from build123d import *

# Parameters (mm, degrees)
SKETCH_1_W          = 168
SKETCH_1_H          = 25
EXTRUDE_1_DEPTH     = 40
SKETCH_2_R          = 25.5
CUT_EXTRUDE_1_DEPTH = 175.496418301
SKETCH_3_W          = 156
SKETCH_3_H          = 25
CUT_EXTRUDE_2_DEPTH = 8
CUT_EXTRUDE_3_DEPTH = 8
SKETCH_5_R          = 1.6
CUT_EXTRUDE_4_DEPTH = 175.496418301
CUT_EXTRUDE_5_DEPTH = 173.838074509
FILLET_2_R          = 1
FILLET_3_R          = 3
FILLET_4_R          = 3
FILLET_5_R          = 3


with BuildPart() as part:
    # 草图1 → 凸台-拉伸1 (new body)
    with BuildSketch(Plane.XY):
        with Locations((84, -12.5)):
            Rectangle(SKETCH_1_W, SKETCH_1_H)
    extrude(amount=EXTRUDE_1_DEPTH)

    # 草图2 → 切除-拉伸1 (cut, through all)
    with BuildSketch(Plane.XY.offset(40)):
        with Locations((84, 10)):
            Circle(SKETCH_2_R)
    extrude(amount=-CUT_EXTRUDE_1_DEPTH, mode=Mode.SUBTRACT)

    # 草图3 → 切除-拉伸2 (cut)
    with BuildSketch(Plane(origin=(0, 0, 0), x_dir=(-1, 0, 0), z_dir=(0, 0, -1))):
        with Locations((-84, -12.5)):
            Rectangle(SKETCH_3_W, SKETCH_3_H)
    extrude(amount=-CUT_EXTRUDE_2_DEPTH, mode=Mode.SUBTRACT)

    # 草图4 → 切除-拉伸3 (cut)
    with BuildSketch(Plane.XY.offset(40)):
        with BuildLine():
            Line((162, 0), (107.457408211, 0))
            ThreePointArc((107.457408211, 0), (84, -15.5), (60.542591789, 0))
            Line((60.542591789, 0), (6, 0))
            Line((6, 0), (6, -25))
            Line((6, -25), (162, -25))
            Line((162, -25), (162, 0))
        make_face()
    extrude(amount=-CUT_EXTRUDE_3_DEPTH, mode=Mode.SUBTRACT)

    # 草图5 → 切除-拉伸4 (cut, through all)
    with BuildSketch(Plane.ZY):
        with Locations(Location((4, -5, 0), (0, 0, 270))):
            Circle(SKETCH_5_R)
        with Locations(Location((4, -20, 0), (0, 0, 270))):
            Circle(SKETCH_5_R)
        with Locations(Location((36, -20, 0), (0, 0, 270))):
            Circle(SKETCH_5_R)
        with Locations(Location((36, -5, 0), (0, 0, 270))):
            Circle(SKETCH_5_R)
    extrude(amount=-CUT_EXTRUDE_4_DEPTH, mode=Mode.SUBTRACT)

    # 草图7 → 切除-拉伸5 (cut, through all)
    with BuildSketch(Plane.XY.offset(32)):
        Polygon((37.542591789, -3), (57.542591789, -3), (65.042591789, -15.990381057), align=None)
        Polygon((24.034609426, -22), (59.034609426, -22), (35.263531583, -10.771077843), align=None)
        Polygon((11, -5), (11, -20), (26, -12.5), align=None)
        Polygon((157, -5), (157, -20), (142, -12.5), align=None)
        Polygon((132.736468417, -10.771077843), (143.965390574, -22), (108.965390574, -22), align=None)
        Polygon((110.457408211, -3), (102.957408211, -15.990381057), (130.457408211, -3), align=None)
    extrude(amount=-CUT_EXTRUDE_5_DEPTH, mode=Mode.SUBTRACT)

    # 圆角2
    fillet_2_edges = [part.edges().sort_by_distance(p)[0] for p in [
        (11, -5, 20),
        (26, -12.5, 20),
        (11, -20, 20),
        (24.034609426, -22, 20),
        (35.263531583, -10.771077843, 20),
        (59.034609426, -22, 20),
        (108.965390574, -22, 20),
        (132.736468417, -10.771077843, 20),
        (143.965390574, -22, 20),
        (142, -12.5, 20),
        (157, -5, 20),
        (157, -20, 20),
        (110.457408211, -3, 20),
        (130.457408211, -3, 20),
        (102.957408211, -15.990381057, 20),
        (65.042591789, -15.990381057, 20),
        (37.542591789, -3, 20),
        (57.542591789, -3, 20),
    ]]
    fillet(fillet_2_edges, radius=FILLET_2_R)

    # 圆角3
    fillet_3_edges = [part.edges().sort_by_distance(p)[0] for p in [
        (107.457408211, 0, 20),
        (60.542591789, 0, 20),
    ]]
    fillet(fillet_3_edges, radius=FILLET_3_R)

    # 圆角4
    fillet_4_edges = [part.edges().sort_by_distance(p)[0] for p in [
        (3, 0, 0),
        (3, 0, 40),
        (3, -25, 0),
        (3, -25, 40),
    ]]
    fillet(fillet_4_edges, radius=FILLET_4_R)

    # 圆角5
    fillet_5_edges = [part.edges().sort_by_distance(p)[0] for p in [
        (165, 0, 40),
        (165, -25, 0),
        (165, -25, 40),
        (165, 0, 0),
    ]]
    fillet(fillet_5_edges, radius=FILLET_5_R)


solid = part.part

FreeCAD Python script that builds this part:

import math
import FreeCAD as App
import Part
import Sketcher
from FreeCAD import Vector
Q = App.Units.Quantity


def edges_at(feature, points):
    """Names of the edges that pass closest to the given points."""
    edges = feature.Shape.Edges
    near = lambda p: min(range(len(edges)), key=lambda i: edges[i].distToShape(Part.Vertex(*p))[0])
    return sorted({f"Edge{near(p) + 1}" for p in points})


def add_polygon(sketch, points):
    """Adds a closed chain of lines whose ends are joined by coincident constraints."""
    first, n = sketch.GeometryCount, len(points)
    for a, b in zip(points, points[1:] + points[:1]):
        sketch.addGeometry(Part.LineSegment(App.Vector(*a, 0), App.Vector(*b, 0)), False)
    for i in range(n):
        sketch.addConstraint(Sketcher.Constraint("Coincident", first + i, 2, first + (i + 1) % n, 1))

doc = App.newDocument("Part")
body = doc.addObject("PartDesign::Body", "Body")

# Sketch on XY plane
sketch1 = doc.addObject("Sketcher::SketchObject", "Sketch")
body.addObject(sketch1)
sketch1.AttachmentSupport = (doc.XY_Plane, [""])
sketch1.MapMode = "FlatFace"
add_polygon(sketch1, [(0, 0), (0, -25), (168, -25), (168, 0)])  # lines 0-3
sketch1.addConstraint(Sketcher.Constraint("Vertical", 0))
sketch1.addConstraint(Sketcher.Constraint("Horizontal", 1))
sketch1.addConstraint(Sketcher.Constraint("Vertical", 2))
sketch1.addConstraint(Sketcher.Constraint("Horizontal", 3))
sketch1.addConstraint(Sketcher.Constraint("Coincident", 3, 2, -1, 1))
sketch1.addConstraint(Sketcher.Constraint("DistanceX", 1, 1, 1, 2, Q("168 mm")))
sketch1.addConstraint(Sketcher.Constraint("DistanceY", 0, 2, 0, 1, Q("25 mm")))
pad1 = doc.addObject("PartDesign::Pad", "Pad")
body.addObject(pad1)
pad1.Profile = sketch1
pad1.Length = 40

# Sketch on XY plane
sketch2 = doc.addObject("Sketcher::SketchObject", "Sketch001")
body.addObject(sketch2)
sketch2.AttachmentSupport = (doc.XY_Plane, [""])
sketch2.MapMode = "FlatFace"
sketch2.AttachmentOffset = App.Placement(Vector(0, 0, 40), App.Rotation())
sketch2.addGeometry(Part.Circle(Vector(84, 10, 0), Vector(0, 0, 1), 26), False)
sketch2.addConstraint(Sketcher.Constraint("Diameter", 0, Q("51 mm")))
sketch2.addConstraint(Sketcher.Constraint("DistanceX", -1, 1, 0, 3, Q("84 mm")))
sketch2.addConstraint(Sketcher.Constraint("DistanceY", -1, 1, 0, 3, Q("10 mm")))
pocket1 = doc.addObject("PartDesign::Pocket", "Pocket")
body.addObject(pocket1)
pocket1.Profile = sketch2
pocket1.Type = "ThroughAll"

# Sketch on XY plane
sketch3 = doc.addObject("Sketcher::SketchObject", "Sketch002")
body.addObject(sketch3)
sketch3.AttachmentSupport = (doc.XY_Plane, [""])
sketch3.MapMode = "FlatFace"
add_polygon(sketch3, [(162, 0), (162, -25), (6, -25), (6, 0)])  # lines 0-3
sketch3.addConstraint(Sketcher.Constraint("Vertical", 0))
sketch3.addConstraint(Sketcher.Constraint("Horizontal", 1))
sketch3.addConstraint(Sketcher.Constraint("Vertical", 2))
sketch3.addConstraint(Sketcher.Constraint("Horizontal", 3))
sketch3.addConstraint(Sketcher.Constraint("PointOnObject", 2, 2, -1))
sketch3.addConstraint(Sketcher.Constraint("DistanceX", 1, 2, 1, 1, Q("156 mm")))
sketch3.addConstraint(Sketcher.Constraint("DistanceY", 0, 2, 0, 1, Q("25 mm")))
sketch3.addConstraint(Sketcher.Constraint("DistanceX", -1, 1, 0, 2, Q("162 mm")))
pocket2 = doc.addObject("PartDesign::Pocket", "Pocket001")
body.addObject(pocket2)
pocket2.Profile = sketch3
pocket2.Length = 8
pocket2.Reversed = True

# Sketch on XY plane
sketch4 = doc.addObject("Sketcher::SketchObject", "Sketch003")
body.addObject(sketch4)
sketch4.AttachmentSupport = (doc.XY_Plane, [""])
sketch4.MapMode = "FlatFace"
sketch4.AttachmentOffset = App.Placement(Vector(0, 0, 40), App.Rotation())
sketch4.addGeometry(Part.LineSegment(Vector(162, 0, 0), Vector(107, 0, 0)), False)
sketch4.addGeometry(Part.ArcOfCircle(Part.Circle(Vector(84, 10, 0), Vector(0, 0, 1), 25), math.radians(-157), math.radians(-23)), False)
sketch4.addGeometry(Part.LineSegment(Vector(61, 0, 0), Vector(6, 0, 0)), False)
sketch4.addGeometry(Part.LineSegment(Vector(6, 0, 0), Vector(6, -25, 0)), False)
sketch4.addGeometry(Part.LineSegment(Vector(6, -25, 0), Vector(162, -25, 0)), False)
sketch4.addGeometry(Part.LineSegment(Vector(162, -25, 0), Vector(162, 0, 0)), False)
sketch4.addConstraint(Sketcher.Constraint("Coincident", 0, 2, 1, 2))
sketch4.addConstraint(Sketcher.Constraint("Coincident", 1, 1, 2, 1))
sketch4.addConstraint(Sketcher.Constraint("Coincident", 2, 2, 3, 1))
sketch4.addConstraint(Sketcher.Constraint("Coincident", 3, 2, 4, 1))
sketch4.addConstraint(Sketcher.Constraint("Coincident", 4, 2, 5, 1))
sketch4.addConstraint(Sketcher.Constraint("Coincident", 5, 2, 0, 1))
sketch4.addConstraint(Sketcher.Constraint("Horizontal", 0))
sketch4.addConstraint(Sketcher.Constraint("Horizontal", 2))
sketch4.addConstraint(Sketcher.Constraint("Vertical", 3))
sketch4.addConstraint(Sketcher.Constraint("Horizontal", 4))
sketch4.addConstraint(Sketcher.Constraint("Vertical", 5))
sketch4.addConstraint(Sketcher.Constraint("PointOnObject", 0, 2, -1))
sketch4.addConstraint(Sketcher.Constraint("PointOnObject", 1, 1, -1))
sketch4.addConstraint(Sketcher.Constraint("Equal", 0, 2))
sketch4.addConstraint(Sketcher.Constraint("Radius", 1, Q("25.5 mm")))
sketch4.addConstraint(Sketcher.Constraint("DistanceX", 4, 1, 4, 2, Q("156 mm")))
sketch4.addConstraint(Sketcher.Constraint("DistanceY", 3, 2, 3, 1, Q("25 mm")))
sketch4.addConstraint(Sketcher.Constraint("DistanceX", -1, 1, 1, 3, Q("84 mm")))
sketch4.addConstraint(Sketcher.Constraint("DistanceY", -1, 1, 1, 3, Q("10 mm")))
pocket3 = doc.addObject("PartDesign::Pocket", "Pocket002")
body.addObject(pocket3)
pocket3.Profile = sketch4
pocket3.Length = 8

# Sketch on YZ plane
sketch5 = doc.addObject("Sketcher::SketchObject", "Sketch004")
body.addObject(sketch5)
sketch5.AttachmentSupport = (doc.YZ_Plane, [""])
sketch5.MapMode = "FlatFace"
sketch5.addGeometry(Part.Circle(Vector(-5, 4, 0), Vector(0, 0, 1), 1.6), False)
sketch5.addGeometry(Part.Circle(Vector(-20, 4, 0), Vector(0, 0, 1), 1.6), False)
sketch5.addGeometry(Part.Circle(Vector(-20, 36, 0), Vector(0, 0, 1), 1.6), False)
sketch5.addGeometry(Part.Circle(Vector(-5, 36, 0), Vector(0, 0, 1), 1.6), False)
sketch5.addConstraint(Sketcher.Constraint("Equal", 0, 1))
sketch5.addConstraint(Sketcher.Constraint("Equal", 1, 2))
sketch5.addConstraint(Sketcher.Constraint("Equal", 2, 3))
sketch5.addConstraint(Sketcher.Constraint("Horizontal", 0, 3, 1, 3))
sketch5.addConstraint(Sketcher.Constraint("Horizontal", 2, 3, 3, 3))
sketch5.addConstraint(Sketcher.Constraint("Vertical", 1, 3, 2, 3))
sketch5.addConstraint(Sketcher.Constraint("Vertical", 0, 3, 3, 3))
sketch5.addConstraint(Sketcher.Constraint("Diameter", 0, Q("3.2 mm")))
sketch5.addConstraint(Sketcher.Constraint("DistanceX", 0, 3, -1, 1, Q("5 mm")))
sketch5.addConstraint(Sketcher.Constraint("DistanceY", -1, 1, 0, 3, Q("4 mm")))
sketch5.addConstraint(Sketcher.Constraint("DistanceX", 1, 3, -1, 1, Q("20 mm")))
sketch5.addConstraint(Sketcher.Constraint("DistanceY", -1, 1, 2, 3, Q("36 mm")))
pocket4 = doc.addObject("PartDesign::Pocket", "Pocket003")
body.addObject(pocket4)
pocket4.Profile = sketch5
pocket4.Type = "ThroughAll"
pocket4.Reversed = True

# Sketch on XY plane
sketch6 = doc.addObject("Sketcher::SketchObject", "Sketch005")
body.addObject(sketch6)
sketch6.AttachmentSupport = (doc.XY_Plane, [""])
sketch6.MapMode = "FlatFace"
sketch6.AttachmentOffset = App.Placement(Vector(0, 0, 32), App.Rotation())
add_polygon(sketch6, [(58, -3), (38, -3), (65, -16)])  # lines 0-2
add_polygon(sketch6, [(24, -22), (59, -22), (35, -11)])  # lines 3-5
add_polygon(sketch6, [(11, -5), (11, -20), (26, -12)])  # lines 6-8
add_polygon(sketch6, [(157, -20), (157, -5), (142, -12)])  # lines 9-11
add_polygon(sketch6, [(144, -22), (133, -11), (109, -22)])  # lines 12-14
add_polygon(sketch6, [(110, -3), (103, -16), (130, -3)])  # lines 15-17
sketch6.addConstraint(Sketcher.Constraint("Horizontal", 0))
sketch6.addConstraint(Sketcher.Constraint("Horizontal", 3))
sketch6.addConstraint(Sketcher.Constraint("Vertical", 6))
sketch6.addConstraint(Sketcher.Constraint("Vertical", 9))
sketch6.addConstraint(Sketcher.Constraint("Horizontal", 14))
sketch6.addConstraint(Sketcher.Constraint("Horizontal", 17))
sketch6.addConstraint(Sketcher.Constraint("Parallel", 1, 4))
sketch6.addConstraint(Sketcher.Constraint("Parallel", 7, 10))
sketch6.addConstraint(Sketcher.Constraint("Parallel", 8, 11))
sketch6.addConstraint(Sketcher.Constraint("Perpendicular", 5, 12))
sketch6.addConstraint(Sketcher.Constraint("Parallel", 13, 16))
sketch6.addConstraint(Sketcher.Constraint("Horizontal", 8, 2, 9, 2))
sketch6.addConstraint(Sketcher.Constraint("Horizontal", 7, 2, 10, 2))
sketch6.addConstraint(Sketcher.Constraint("Horizontal", 6, 2, 11, 2))
sketch6.addConstraint(Sketcher.Constraint("Horizontal", 4, 2, 12, 2))
sketch6.addConstraint(Sketcher.Constraint("Horizontal", 5, 2, 13, 2))
sketch6.addConstraint(Sketcher.Constraint("Horizontal", 1, 2, 15, 2))
sketch6.addConstraint(Sketcher.Constraint("Horizontal", 2, 2, 16, 2))
sketch6.addConstraint(Sketcher.Constraint("Equal", 3, 14))
sketch6.addConstraint(Sketcher.Constraint("Equal", 0, 17))
sketch6.addConstraint(Sketcher.Constraint("Equal", 5, 12))
sketch6.addConstraint(Sketcher.Constraint("DistanceX", 0, 2, 0, 1, Q("20 mm")))
sketch6.addConstraint(Sketcher.Constraint("DistanceX", 3, 1, 3, 2, Q("35 mm")))
sketch6.addConstraint(Sketcher.Constraint("DistanceY", 6, 2, 6, 1, Q("15 mm")))
sketch6.addConstraint(Sketcher.Constraint("Angle", 2, Q("120 deg")))
sketch6.addConstraint(Sketcher.Constraint("Distance", 2, Q("15 mm")))
sketch6.addConstraint(Sketcher.Constraint("DistanceY", 0, 2, -1, 1, Q("3 mm")))
sketch6.addConstraint(Sketcher.Constraint("DistanceY", 3, 2, -1, 1, Q("22 mm")))
sketch6.addConstraint(Sketcher.Constraint("DistanceX", -1, 1, 6, 2, Q("11 mm")))
sketch6.addConstraint(Sketcher.Constraint("DistanceY", 6, 2, -1, 1, Q("20 mm")))
sketch6.addConstraint(Sketcher.Constraint("DistanceX", -1, 1, 7, 2, Q("26 mm")))
sketch6.addConstraint(Sketcher.Constraint("DistanceX", -1, 1, 9, 2, Q("157 mm")))
sketch6.addConstraint(Sketcher.Constraint("DistanceX", 1, 2, 13, 2, Q("43.922799 mm")))
sketch6.addConstraint(Sketcher.Constraint("DistanceX", -1, 1, 0, 2, Q("37.542592 mm")))
sketch6.addConstraint(Sketcher.Constraint("DistanceX", -1, 1, 3, 2, Q("59.034609 mm")))
sketch6.addConstraint(Sketcher.Constraint("DistanceX", -1, 1, 15, 2, Q("102.957408 mm")))
pocket5 = doc.addObject("PartDesign::Pocket", "Pocket004")
body.addObject(pocket5)
pocket5.Profile = sketch6
pocket5.Type = "ThroughAll"
doc.recompute()

fillet = doc.addObject("PartDesign::Fillet", "Fillet")
body.addObject(fillet)
fillet.Base = (pocket5, edges_at(pocket5, [
    (11, -5, 20),
    (26, -12.5, 20),
    (11, -20, 20),
    (24.035, -22, 20),
    (35.264, -10.771, 20),
    (59.035, -22, 20),
    (108.965, -22, 20),
    (132.736, -10.771, 20),
    (143.965, -22, 20),
    (142, -12.5, 20),
    (157, -5, 20),
    (157, -20, 20),
    (110.457, -3, 20),
    (130.457, -3, 20),
    (102.957, -15.99, 20),
    (65.043, -15.99, 20),
    (37.543, -3, 20),
    (57.543, -3, 20),
]))
fillet.Radius = 1
doc.recompute()

fillet2 = doc.addObject("PartDesign::Fillet", "Fillet001")
body.addObject(fillet2)
fillet2.Base = (fillet, edges_at(fillet, [(107.457, 0, 20), (60.543, 0, 20)]))
fillet2.Radius = 3
doc.recompute()

fillet3 = doc.addObject("PartDesign::Fillet", "Fillet002")
body.addObject(fillet3)
fillet3.Base = (fillet2, edges_at(fillet2, [
    (3, 0, 0),
    (3, 0, 40),
    (3, -25, 0),
    (3, -25, 40),
]))
fillet3.Radius = 3
doc.recompute()

fillet4 = doc.addObject("PartDesign::Fillet", "Fillet003")
body.addObject(fillet4)
fillet4.Base = (fillet3, edges_at(fillet3, [
    (165, 0, 40),
    (165, -25, 0),
    (165, -25, 40),
    (165, 0, 0),
]))
fillet4.Radius = 3

doc.recompute()
